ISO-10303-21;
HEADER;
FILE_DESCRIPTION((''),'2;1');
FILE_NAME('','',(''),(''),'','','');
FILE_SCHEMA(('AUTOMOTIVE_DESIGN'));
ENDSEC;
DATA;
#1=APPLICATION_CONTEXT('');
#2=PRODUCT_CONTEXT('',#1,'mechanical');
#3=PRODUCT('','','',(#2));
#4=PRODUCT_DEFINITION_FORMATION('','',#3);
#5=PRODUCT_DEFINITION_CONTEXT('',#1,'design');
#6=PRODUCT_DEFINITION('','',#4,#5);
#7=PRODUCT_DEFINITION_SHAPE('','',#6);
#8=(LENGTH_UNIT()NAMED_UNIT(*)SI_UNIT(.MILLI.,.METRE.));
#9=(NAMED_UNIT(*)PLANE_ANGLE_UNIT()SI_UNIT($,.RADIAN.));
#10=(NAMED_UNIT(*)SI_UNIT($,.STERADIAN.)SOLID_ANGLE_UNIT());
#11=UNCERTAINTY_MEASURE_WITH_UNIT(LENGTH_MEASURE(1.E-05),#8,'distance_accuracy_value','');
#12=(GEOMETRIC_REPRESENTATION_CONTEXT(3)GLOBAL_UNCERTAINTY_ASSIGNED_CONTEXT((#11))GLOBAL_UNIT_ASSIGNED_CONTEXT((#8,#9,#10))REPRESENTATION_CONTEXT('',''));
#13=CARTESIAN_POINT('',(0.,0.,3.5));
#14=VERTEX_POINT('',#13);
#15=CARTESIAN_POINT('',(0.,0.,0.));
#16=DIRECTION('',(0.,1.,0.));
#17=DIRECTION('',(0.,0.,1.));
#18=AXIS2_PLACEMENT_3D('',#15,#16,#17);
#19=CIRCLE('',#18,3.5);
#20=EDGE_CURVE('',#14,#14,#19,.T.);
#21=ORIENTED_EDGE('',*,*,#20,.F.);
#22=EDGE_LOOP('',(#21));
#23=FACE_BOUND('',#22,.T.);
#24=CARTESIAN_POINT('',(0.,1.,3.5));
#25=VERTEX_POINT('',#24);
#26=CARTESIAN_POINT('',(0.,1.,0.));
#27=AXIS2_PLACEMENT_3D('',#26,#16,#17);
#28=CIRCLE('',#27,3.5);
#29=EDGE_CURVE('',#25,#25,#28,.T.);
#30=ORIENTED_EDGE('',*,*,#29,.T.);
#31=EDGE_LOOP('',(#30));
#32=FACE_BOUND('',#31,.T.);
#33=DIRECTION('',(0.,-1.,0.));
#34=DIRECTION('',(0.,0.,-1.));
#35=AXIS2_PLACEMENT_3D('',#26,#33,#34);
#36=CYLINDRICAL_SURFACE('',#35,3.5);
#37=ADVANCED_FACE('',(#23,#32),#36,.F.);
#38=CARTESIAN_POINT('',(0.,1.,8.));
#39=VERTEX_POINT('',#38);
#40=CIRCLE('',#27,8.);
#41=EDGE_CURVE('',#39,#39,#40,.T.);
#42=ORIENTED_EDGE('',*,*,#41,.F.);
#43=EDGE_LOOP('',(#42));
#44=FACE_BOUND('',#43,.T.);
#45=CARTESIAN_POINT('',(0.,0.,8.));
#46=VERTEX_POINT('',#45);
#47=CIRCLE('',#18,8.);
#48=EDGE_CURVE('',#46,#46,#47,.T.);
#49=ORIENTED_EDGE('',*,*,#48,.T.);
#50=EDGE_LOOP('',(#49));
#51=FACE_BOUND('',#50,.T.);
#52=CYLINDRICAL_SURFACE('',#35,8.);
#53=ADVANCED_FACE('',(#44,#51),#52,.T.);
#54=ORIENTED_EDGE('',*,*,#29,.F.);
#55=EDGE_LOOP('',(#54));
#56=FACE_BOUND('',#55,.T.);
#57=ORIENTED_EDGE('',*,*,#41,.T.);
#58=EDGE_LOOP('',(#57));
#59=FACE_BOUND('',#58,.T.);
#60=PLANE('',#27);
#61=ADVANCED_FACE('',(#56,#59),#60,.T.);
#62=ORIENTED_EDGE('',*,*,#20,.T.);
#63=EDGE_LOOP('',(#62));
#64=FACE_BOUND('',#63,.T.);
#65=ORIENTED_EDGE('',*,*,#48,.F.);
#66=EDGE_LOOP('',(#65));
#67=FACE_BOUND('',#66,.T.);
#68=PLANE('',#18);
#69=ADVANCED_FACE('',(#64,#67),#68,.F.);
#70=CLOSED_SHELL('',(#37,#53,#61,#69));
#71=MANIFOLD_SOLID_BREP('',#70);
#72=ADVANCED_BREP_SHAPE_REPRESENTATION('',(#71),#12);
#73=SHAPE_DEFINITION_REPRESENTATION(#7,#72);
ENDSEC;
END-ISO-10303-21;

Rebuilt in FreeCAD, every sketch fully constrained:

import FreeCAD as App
import Part
import Sketcher

doc = App.newDocument("Part")
body = doc.addObject("PartDesign::Body", "Body")

sketch1 = doc.addObject("Sketcher::SketchObject", "Sketch")
body.addObject(sketch1)
sketch1.AttachmentSupport = (doc.XZ_Plane, [""])
sketch1.MapMode = "FlatFace"
sketch1.addGeometry([
    Part.Circle(App.Vector(0, 0, 0), App.Vector(0, 0, 1), 8),
    Part.Circle(App.Vector(0, 0, 0), App.Vector(0, 0, 1), 3.5),
], False)
sketch1.addConstraint([
    Sketcher.Constraint("Coincident", 0, 3, -1, 1),
    Sketcher.Constraint("Coincident", 1, 3, -1, 1),
    Sketcher.Constraint("Diameter", 0, 16.0),
    Sketcher.Constraint("Diameter", 1, 7.0),
])
pad1 = doc.addObject("PartDesign::Pad", "Pad")
body.addObject(pad1)
pad1.Profile = sketch1
pad1.Length = 1
pad1.Reversed = True

doc.recompute()
